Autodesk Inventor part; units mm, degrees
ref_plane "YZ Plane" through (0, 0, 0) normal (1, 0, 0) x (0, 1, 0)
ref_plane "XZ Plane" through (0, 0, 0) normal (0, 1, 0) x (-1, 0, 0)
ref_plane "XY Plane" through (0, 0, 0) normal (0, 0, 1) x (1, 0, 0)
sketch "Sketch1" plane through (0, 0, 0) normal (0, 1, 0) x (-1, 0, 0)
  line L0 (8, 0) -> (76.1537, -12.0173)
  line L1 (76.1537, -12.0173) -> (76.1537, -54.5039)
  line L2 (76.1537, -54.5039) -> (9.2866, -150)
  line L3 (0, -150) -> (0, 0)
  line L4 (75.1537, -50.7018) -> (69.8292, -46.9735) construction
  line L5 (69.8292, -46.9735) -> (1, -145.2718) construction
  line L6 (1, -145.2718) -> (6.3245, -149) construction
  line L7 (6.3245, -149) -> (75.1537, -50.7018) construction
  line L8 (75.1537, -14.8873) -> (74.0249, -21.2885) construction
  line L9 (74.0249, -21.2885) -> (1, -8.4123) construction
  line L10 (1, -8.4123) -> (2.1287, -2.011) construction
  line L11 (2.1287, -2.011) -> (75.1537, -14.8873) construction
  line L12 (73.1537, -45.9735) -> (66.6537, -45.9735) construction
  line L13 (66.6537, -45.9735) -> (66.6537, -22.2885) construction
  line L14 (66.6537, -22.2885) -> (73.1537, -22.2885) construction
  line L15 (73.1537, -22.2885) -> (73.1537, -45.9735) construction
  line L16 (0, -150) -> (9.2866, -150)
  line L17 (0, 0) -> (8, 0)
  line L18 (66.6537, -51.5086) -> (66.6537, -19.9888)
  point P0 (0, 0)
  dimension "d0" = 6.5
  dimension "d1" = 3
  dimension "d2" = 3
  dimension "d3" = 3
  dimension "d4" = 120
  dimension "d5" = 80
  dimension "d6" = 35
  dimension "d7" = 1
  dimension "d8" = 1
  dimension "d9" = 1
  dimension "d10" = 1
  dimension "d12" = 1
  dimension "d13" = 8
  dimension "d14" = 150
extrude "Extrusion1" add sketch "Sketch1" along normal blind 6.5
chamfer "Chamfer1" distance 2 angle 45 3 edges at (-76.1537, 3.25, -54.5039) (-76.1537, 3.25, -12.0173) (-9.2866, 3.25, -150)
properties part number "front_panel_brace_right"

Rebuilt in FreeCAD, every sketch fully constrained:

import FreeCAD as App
import Part
import Sketcher
from FreeCAD import Vector
Q = App.Units.Quantity


def edges_at(feature, points):
    """Names of the edges that pass closest to the given points."""
    edges = feature.Shape.Edges
    near = lambda p: min(range(len(edges)), key=lambda i: edges[i].distToShape(Part.Vertex(*p))[0])
    return sorted({f"Edge{near(p) + 1}" for p in points})

doc = App.newDocument("Part")
body = doc.addObject("PartDesign::Body", "Body")

# Sketch on XZ plane
sketch1 = body.newObject("Sketcher::SketchObject", "Sketch")
sketch1.AttachmentSupport = (doc.getObject("XZ_Plane"), [""])
sketch1.MapMode = "FlatFace"
sketch1.addGeometry([
    Part.LineSegment(Vector(-76.1537, -12.0173, 0), Vector(-8, 0, 0)),  # 0
    Part.LineSegment(Vector(-8, 0, 0), Vector(0, 0, 0)),  # 1
    Part.LineSegment(Vector(0, 0, 0), Vector(0, -150, 0)),  # 2
    Part.LineSegment(Vector(0, -150, 0), Vector(-9.2866, -150, 0)),  # 3
    Part.LineSegment(Vector(-9.2866, -150, 0), Vector(-76.1537, -54.5039, 0)),  # 4
    Part.LineSegment(Vector(-76.1537, -54.5039, 0), Vector(-76.1537, -12.0173, 0)),  # 5
], False)
sketch1.addConstraint([
    Sketcher.Constraint("Coincident", 0, 2, 1, 1),
    Sketcher.Constraint("Coincident", 1, 2, 2, 1),
    Sketcher.Constraint("Coincident", 2, 2, 3, 1),
    Sketcher.Constraint("Coincident", 3, 2, 4, 1),
    Sketcher.Constraint("Coincident", 4, 2, 5, 1),
    Sketcher.Constraint("Coincident", 5, 2, 0, 1),
    Sketcher.Constraint("Horizontal", 1),
    Sketcher.Constraint("Vertical", 2),
    Sketcher.Constraint("Horizontal", 3),
    Sketcher.Constraint("Vertical", 5),
    Sketcher.Constraint("Coincident", 1, 2, -1, 1),
    Sketcher.Constraint("DistanceX", 1, 1, 1, 2, Q("8 mm")),
    Sketcher.Constraint("DistanceY", 2, 2, 2, 1, Q("150 mm")),
    Sketcher.Constraint("Angle", 0, Q("10 deg")),
    Sketcher.Constraint("Angle", 4, Q("125 deg")),
    Sketcher.Constraint("Distance", 0, Q("69.205 mm")),
    Sketcher.Constraint("DistanceX", 3, 2, 3, 1, Q("9.2866 mm")),
])
pad1 = body.newObject("PartDesign::Pad", "Pad")
pad1.Profile = sketch1
pad1.Length = 6.5
pad1.Reversed = True
doc.recompute()

chamfer = body.newObject("PartDesign::Chamfer", "Chamfer")
chamfer.Base = (pad1, edges_at(pad1, [(-76.154, 3.25, -54.504), (-76.154, 3.25, -12.017), (-9.287, 3.25, -150)]))
chamfer.Size = 2

doc.recompute()
